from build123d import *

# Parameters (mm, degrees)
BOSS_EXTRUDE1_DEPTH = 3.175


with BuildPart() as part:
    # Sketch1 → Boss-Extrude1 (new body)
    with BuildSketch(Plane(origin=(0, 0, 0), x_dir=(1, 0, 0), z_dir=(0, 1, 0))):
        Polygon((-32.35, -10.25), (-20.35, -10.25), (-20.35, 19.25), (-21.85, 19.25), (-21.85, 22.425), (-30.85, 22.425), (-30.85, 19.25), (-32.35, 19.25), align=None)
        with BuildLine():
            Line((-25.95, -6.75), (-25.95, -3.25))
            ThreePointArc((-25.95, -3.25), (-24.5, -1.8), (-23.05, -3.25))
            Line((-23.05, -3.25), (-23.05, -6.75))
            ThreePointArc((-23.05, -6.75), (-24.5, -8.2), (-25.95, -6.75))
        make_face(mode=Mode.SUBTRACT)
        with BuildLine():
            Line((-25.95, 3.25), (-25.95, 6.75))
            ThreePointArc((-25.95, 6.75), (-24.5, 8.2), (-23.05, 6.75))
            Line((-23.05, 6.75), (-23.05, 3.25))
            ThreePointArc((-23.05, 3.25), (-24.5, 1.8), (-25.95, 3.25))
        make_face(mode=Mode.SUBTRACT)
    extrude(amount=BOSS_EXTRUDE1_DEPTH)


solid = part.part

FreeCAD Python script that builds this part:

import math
import FreeCAD as App
import Part
import Sketcher


def add_polygon(sketch, points):
    """Adds a closed chain of lines whose ends are joined by coincident constraints."""
    first, n = sketch.GeometryCount, len(points)
    for a, b in zip(points, points[1:] + points[:1]):
        sketch.addGeometry(Part.LineSegment(App.Vector(*a, 0), App.Vector(*b, 0)), False)
    for i in range(n):
        sketch.addConstraint(Sketcher.Constraint("Coincident", first + i, 2, first + (i + 1) % n, 1))

doc = App.newDocument("Part")
body = doc.addObject("PartDesign::Body", "Body")

# Sketch on XZ plane
sketch1 = body.newObject("Sketcher::SketchObject", "Sketch")
sketch1.AttachmentSupport = (doc.getObject("XZ_Plane"), [""])
sketch1.MapMode = "FlatFace"
add_polygon(sketch1, [(-32.4, 10.2), (-20.4, 10.2), (-20.4, -19.2), (-21.9, -19.2), (-21.9, -22.4), (-30.9, -22.4), (-30.9, -19.2), (-32.4, -19.2)])  # lines 0-7
sketch1.addGeometry(Part.ArcOfCircle(Part.Circle(App.Vector(-24.5, 6.8, 0), App.Vector(0, 0, 1), 1.4), math.radians(0), math.radians(180)), False)  # 8
sketch1.addGeometry(Part.LineSegment(App.Vector(-25.9, 6.8, 0), App.Vector(-25.9, 3.2, 0)), False)  # 9
sketch1.addGeometry(Part.ArcOfCircle(Part.Circle(App.Vector(-24.5, 3.2, 0), App.Vector(0, 0, 1), 1.4), math.radians(180), math.radians(360)), False)  # 10
sketch1.addGeometry(Part.LineSegment(App.Vector(-23.1, 3.2, 0), App.Vector(-23.1, 6.8, 0)), False)  # 11
sketch1.addGeometry(Part.ArcOfCircle(Part.Circle(App.Vector(-24.5, -3.2, 0), App.Vector(0, 0, 1), 1.4), math.radians(0), math.radians(180)), False)  # 12
sketch1.addGeometry(Part.LineSegment(App.Vector(-25.9, -3.2, 0), App.Vector(-25.9, -6.8, 0)), False)  # 13
sketch1.addGeometry(Part.ArcOfCircle(Part.Circle(App.Vector(-24.5, -6.8, 0), App.Vector(0, 0, 1), 1.4), math.radians(180), math.radians(360)), False)  # 14
sketch1.addGeometry(Part.LineSegment(App.Vector(-23.1, -6.8, 0), App.Vector(-23.1, -3.2, 0)), False)  # 15
sketch1.addConstraint([
    Sketcher.Constraint("Tangent", 8, 2, 9, 1),
    Sketcher.Constraint("Tangent", 9, 2, 10, 1),
    Sketcher.Constraint("Tangent", 10, 2, 11, 1),
    Sketcher.Constraint("Tangent", 11, 2, 8, 1),
    Sketcher.Constraint("Tangent", 12, 2, 13, 1),
    Sketcher.Constraint("Tangent", 13, 2, 14, 1),
    Sketcher.Constraint("Tangent", 14, 2, 15, 1),
    Sketcher.Constraint("Tangent", 15, 2, 12, 1),
    Sketcher.Constraint("Horizontal", 0),
    Sketcher.Constraint("Vertical", 1),
    Sketcher.Constraint("Horizontal", 2),
    Sketcher.Constraint("Vertical", 3),
    Sketcher.Constraint("Horizontal", 4),
    Sketcher.Constraint("Vertical", 5),
    Sketcher.Constraint("Horizontal", 6),
    Sketcher.Constraint("Vertical", 7),
    Sketcher.Constraint("Vertical", 9),
    Sketcher.Constraint("Vertical", 11),
    Sketcher.Constraint("Vertical", 13),
    Sketcher.Constraint("Vertical", 15),
    Sketcher.Constraint("Equal", 10, 12),
    Sketcher.Constraint("Symmetric", 10, 3, 12, 3, -1),
    Sketcher.Constraint("Horizontal", 2, 2, 5, 2),
    Sketcher.Constraint("Equal", 2, 6),
    Sketcher.Constraint("Equal", 11, 13),
    Sketcher.Constraint("DistanceX", 0, 1, 0, 2, 12.0),
    Sketcher.Constraint("DistanceX", 4, 2, 4, 1, 9.0),
    Sketcher.Constraint("Radius", 8, 1.45),
    Sketcher.Constraint("DistanceY", 1, 2, 1, 1, 29.5),
    Sketcher.Constraint("DistanceY", 9, 2, 9, 1, 3.5),
    Sketcher.Constraint("DistanceY", 12, 3, 8, 3, 10.0),
    Sketcher.Constraint("DistanceY", 10, 3, 0, 2, 7.0),
    Sketcher.Constraint("DistanceX", 8, 3, -1, 1, 24.5),
    Sketcher.Constraint("DistanceX", 8, 2, 0, 2, 5.6),
    Sketcher.Constraint("DistanceY", 3, 2, 3, 1, 3.175),
])
pad1 = body.newObject("PartDesign::Pad", "Pad")
pad1.Profile = sketch1
pad1.Length = 3.175
pad1.Reversed = True

doc.recompute()
